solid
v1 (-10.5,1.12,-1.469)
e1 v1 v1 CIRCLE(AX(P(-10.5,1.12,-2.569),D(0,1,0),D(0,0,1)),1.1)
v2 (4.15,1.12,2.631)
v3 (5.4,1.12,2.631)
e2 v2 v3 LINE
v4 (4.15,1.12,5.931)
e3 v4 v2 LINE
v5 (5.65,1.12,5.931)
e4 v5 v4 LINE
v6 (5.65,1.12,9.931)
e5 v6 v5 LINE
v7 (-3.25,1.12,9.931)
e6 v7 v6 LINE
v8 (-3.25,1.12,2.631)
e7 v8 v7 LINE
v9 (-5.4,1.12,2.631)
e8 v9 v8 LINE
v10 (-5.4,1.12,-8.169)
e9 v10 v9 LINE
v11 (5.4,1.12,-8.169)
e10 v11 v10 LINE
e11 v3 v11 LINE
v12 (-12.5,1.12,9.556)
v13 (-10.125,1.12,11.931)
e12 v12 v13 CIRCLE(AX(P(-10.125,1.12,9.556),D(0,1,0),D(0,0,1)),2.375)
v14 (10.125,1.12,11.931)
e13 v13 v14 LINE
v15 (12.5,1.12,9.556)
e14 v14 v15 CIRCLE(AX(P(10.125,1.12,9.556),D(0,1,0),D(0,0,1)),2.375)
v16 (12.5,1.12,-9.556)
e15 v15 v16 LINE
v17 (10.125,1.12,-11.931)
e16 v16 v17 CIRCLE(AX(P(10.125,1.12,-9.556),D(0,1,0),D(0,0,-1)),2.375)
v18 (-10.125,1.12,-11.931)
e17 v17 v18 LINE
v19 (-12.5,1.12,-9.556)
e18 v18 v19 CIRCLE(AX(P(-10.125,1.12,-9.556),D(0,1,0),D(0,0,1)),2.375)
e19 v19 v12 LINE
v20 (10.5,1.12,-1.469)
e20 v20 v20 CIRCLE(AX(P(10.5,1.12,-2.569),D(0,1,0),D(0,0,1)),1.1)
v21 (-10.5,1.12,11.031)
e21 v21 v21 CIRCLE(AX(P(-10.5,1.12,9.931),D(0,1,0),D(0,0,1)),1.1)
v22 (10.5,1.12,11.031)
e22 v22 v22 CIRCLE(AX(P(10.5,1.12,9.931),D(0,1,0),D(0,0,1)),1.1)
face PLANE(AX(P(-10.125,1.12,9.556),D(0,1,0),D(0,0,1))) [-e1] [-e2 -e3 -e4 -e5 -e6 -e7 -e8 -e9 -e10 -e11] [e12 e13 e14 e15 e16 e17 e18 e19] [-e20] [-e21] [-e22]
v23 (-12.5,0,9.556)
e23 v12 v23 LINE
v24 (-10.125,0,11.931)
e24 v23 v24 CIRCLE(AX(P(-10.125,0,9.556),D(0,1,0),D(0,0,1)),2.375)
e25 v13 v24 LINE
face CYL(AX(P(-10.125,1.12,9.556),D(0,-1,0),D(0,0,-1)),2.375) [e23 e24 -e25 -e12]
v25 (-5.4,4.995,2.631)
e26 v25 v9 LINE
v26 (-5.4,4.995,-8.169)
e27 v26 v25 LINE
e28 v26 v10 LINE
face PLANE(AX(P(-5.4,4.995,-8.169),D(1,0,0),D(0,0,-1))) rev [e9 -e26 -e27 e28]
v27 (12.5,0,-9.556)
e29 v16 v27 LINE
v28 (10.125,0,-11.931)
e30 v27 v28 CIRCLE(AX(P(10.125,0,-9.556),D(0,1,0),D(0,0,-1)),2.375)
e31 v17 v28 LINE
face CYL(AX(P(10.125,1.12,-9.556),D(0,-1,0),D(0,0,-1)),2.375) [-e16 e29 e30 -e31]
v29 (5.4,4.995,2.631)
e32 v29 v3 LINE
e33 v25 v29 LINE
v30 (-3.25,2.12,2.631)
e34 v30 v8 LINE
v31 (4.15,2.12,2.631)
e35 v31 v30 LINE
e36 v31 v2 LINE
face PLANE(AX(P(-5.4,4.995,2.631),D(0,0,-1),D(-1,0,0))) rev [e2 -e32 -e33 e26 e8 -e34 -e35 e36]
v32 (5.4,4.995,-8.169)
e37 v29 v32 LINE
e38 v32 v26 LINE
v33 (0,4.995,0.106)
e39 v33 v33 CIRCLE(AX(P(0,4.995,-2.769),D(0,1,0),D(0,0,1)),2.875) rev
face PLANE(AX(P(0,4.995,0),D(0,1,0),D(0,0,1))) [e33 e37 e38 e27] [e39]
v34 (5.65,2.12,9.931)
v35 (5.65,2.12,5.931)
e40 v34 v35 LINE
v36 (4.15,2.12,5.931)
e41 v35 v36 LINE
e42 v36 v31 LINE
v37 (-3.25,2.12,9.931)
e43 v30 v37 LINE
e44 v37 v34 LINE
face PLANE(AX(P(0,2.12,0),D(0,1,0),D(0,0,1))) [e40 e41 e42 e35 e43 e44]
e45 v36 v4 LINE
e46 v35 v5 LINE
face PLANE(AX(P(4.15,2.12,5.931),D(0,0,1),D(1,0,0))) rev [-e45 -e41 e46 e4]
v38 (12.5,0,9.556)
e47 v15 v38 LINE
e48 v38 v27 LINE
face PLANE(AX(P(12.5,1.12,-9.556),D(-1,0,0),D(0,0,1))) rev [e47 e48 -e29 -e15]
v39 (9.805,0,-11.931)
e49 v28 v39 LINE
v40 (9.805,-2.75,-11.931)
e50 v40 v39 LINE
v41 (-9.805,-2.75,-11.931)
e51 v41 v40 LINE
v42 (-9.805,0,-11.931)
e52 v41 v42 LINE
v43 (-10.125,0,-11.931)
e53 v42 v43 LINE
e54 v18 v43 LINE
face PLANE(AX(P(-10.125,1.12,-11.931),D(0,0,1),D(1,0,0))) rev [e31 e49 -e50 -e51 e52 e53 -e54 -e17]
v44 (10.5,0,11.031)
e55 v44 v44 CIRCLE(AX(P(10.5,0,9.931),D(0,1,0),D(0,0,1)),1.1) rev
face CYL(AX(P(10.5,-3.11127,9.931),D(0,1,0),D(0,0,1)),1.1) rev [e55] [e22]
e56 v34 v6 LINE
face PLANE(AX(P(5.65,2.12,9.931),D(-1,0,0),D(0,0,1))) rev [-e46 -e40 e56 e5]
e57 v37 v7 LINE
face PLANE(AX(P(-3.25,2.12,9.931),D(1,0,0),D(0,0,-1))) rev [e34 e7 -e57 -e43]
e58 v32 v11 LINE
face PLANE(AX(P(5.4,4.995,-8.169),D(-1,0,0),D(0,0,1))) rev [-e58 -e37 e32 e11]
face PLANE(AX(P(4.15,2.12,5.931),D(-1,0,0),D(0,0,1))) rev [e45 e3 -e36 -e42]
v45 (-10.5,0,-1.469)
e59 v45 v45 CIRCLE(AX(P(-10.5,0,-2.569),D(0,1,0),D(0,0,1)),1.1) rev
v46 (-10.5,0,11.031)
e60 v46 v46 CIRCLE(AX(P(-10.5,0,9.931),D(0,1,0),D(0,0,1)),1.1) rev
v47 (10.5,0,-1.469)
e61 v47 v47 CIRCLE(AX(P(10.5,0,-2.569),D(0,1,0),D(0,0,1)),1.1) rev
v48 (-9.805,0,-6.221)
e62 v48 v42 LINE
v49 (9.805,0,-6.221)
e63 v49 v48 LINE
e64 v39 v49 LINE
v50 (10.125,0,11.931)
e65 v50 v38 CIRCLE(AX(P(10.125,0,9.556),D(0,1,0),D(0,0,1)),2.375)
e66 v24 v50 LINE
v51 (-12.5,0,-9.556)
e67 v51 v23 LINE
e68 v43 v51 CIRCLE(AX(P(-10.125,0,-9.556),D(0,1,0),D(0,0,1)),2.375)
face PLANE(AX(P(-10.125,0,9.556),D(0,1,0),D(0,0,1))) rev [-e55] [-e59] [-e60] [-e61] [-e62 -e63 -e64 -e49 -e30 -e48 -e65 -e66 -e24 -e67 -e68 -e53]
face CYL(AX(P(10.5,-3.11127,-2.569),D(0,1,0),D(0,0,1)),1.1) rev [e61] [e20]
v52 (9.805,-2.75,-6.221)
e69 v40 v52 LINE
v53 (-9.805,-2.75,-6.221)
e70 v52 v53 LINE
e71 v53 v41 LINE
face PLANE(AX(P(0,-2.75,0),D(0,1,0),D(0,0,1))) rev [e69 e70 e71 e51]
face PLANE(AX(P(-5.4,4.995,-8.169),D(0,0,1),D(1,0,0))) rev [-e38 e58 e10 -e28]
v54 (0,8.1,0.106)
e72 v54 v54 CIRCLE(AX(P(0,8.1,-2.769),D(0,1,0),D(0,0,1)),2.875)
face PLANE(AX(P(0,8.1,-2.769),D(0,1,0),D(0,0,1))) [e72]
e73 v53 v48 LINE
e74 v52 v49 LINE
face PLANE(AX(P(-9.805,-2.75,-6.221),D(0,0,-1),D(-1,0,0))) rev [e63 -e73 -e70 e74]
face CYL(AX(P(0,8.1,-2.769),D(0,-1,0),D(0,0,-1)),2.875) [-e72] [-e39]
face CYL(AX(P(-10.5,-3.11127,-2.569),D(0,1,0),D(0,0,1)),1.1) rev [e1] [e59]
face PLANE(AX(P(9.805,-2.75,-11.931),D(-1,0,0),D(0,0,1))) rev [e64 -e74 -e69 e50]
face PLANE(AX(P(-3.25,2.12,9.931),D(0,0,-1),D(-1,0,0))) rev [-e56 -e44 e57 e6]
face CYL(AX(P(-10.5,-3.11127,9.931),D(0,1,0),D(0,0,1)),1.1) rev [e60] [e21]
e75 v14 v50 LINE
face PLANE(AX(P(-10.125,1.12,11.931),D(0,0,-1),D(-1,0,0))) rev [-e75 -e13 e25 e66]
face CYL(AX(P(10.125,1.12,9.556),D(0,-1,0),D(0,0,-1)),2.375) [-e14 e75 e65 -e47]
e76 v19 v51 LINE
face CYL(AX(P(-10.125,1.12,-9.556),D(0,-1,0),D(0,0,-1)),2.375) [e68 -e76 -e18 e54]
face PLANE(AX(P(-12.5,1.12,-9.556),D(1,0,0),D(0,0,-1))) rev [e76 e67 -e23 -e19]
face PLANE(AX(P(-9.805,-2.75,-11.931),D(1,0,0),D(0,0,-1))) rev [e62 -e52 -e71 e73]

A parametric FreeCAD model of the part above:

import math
import FreeCAD as App
import Part
import Sketcher


def add_polygon(sketch, points):
    """Adds a closed chain of lines whose ends are joined by coincident constraints."""
    first, n = sketch.GeometryCount, len(points)
    for a, b in zip(points, points[1:] + points[:1]):
        sketch.addGeometry(Part.LineSegment(App.Vector(*a, 0), App.Vector(*b, 0)), False)
    for i in range(n):
        sketch.addConstraint(Sketcher.Constraint("Coincident", first + i, 2, first + (i + 1) % n, 1))

doc = App.newDocument("Part")
body = doc.addObject("PartDesign::Body", "Body")

# Sketch on XZ plane
sketch1 = doc.addObject("Sketcher::SketchObject", "Sketch")
body.addObject(sketch1)
sketch1.AttachmentSupport = (doc.XZ_Plane, [""])
sketch1.MapMode = "FlatFace"
sketch1.addGeometry(Part.LineSegment(App.Vector(10.125, -11.931, 0), App.Vector(-10.125, -11.931, 0)), False)
sketch1.addGeometry(Part.ArcOfCircle(Part.Circle(App.Vector(-10.125, -9.556, 0), App.Vector(0, 0, 1), 2.375), math.radians(-180), math.radians(-90)), False)
sketch1.addGeometry(Part.LineSegment(App.Vector(-12.5, -9.556, 0), App.Vector(-12.5, 9.556, 0)), False)
sketch1.addGeometry(Part.ArcOfCircle(Part.Circle(App.Vector(-10.125, 9.556, 0), App.Vector(0, 0, 1), 2.375), math.radians(90), math.radians(180)), False)
sketch1.addGeometry(Part.LineSegment(App.Vector(-10.125, 11.931, 0), App.Vector(10.125, 11.931, 0)), False)
sketch1.addGeometry(Part.ArcOfCircle(Part.Circle(App.Vector(10.125, 9.556, 0), App.Vector(0, 0, 1), 2.375), math.radians(0), math.radians(90)), False)
sketch1.addGeometry(Part.LineSegment(App.Vector(12.5, 9.556, 0), App.Vector(12.5, -9.556, 0)), False)
sketch1.addGeometry(Part.ArcOfCircle(Part.Circle(App.Vector(10.125, -9.556, 0), App.Vector(0, 0, 1), 2.375), math.radians(-90), math.radians(0)), False)
sketch1.addConstraint(Sketcher.Constraint("Tangent", 0, 2, 1, 2))
sketch1.addConstraint(Sketcher.Constraint("Tangent", 1, 1, 2, 1))
sketch1.addConstraint(Sketcher.Constraint("Tangent", 2, 2, 3, 2))
sketch1.addConstraint(Sketcher.Constraint("Tangent", 3, 1, 4, 1))
sketch1.addConstraint(Sketcher.Constraint("Tangent", 4, 2, 5, 2))
sketch1.addConstraint(Sketcher.Constraint("Tangent", 5, 1, 6, 1))
sketch1.addConstraint(Sketcher.Constraint("Tangent", 6, 2, 7, 2))
sketch1.addConstraint(Sketcher.Constraint("Tangent", 7, 1, 0, 1))
sketch1.addConstraint(Sketcher.Constraint("Horizontal", 0))
sketch1.addConstraint(Sketcher.Constraint("Vertical", 2))
sketch1.addConstraint(Sketcher.Constraint("Horizontal", 4))
sketch1.addConstraint(Sketcher.Constraint("Vertical", 6))
sketch1.addConstraint(Sketcher.Constraint("Equal", 1, 3))
sketch1.addConstraint(Sketcher.Constraint("Equal", 3, 5))
sketch1.addConstraint(Sketcher.Constraint("Equal", 5, 7))
sketch1.addConstraint(Sketcher.Constraint("Symmetric", 1, 3, 5, 3, -1, 1))
sketch1.addConstraint(Sketcher.Constraint("Radius", 1, 2.375))
sketch1.addConstraint(Sketcher.Constraint("DistanceX", 0, 2, 0, 1, 20.25))
sketch1.addConstraint(Sketcher.Constraint("DistanceY", 2, 1, 2, 2, 19.112))
pad1 = doc.addObject("PartDesign::Pad", "Pad")
body.addObject(pad1)
pad1.Profile = sketch1
pad1.Length = 1.12
pad1.Reversed = True

# Sketch on XZ plane
sketch2 = doc.addObject("Sketcher::SketchObject", "Sketch001")
body.addObject(sketch2)
sketch2.AttachmentSupport = (doc.XZ_Plane, [""])
sketch2.MapMode = "FlatFace"
sketch2.AttachmentOffset = App.Placement(App.Vector(0, 0, -1.12), App.Rotation())
sketch2.addGeometry(Part.Circle(App.Vector(-10.5, 9.931, 0), App.Vector(0, 0, 1), 1.1), False)
sketch2.addGeometry(Part.Circle(App.Vector(-10.5, -2.569, 0), App.Vector(0, 0, 1), 1.1), False)
sketch2.addGeometry(Part.Circle(App.Vector(10.5, 9.931, 0), App.Vector(0, 0, 1), 1.1), False)
sketch2.addGeometry(Part.Circle(App.Vector(10.5, -2.569, 0), App.Vector(0, 0, 1), 1.1), False)
sketch2.addConstraint(Sketcher.Constraint("Equal", 0, 1))
sketch2.addConstraint(Sketcher.Constraint("Equal", 1, 2))
sketch2.addConstraint(Sketcher.Constraint("Equal", 2, 3))
sketch2.addConstraint(Sketcher.Constraint("Symmetric", 0, 3, 2, 3, -2))
sketch2.addConstraint(Sketcher.Constraint("Symmetric", 1, 3, 3, 3, -2))
sketch2.addConstraint(Sketcher.Constraint("Vertical", 0, 3, 1, 3))
sketch2.addConstraint(Sketcher.Constraint("Diameter", 0, 2.2))
sketch2.addConstraint(Sketcher.Constraint("DistanceX", 0, 3, 2, 3, 21.0))
sketch2.addConstraint(Sketcher.Constraint("DistanceY", 1, 3, 0, 3, 12.5))
sketch2.addConstraint(Sketcher.Constraint("DistanceY", -1, 1, 0, 3, 9.931))
pocket1 = doc.addObject("PartDesign::Pocket", "Pocket")
body.addObject(pocket1)
pocket1.Profile = sketch2
pocket1.Length = 1.12
pocket1.Reversed = True

# Sketch on XZ plane
sketch3 = doc.addObject("Sketcher::SketchObject", "Sketch002")
body.addObject(sketch3)
sketch3.AttachmentSupport = (doc.XZ_Plane, [""])
sketch3.MapMode = "FlatFace"
sketch3.AttachmentOffset = App.Placement(App.Vector(0, 0, -1.12), App.Rotation())
add_polygon(sketch3, [(-5.4, -8.169), (-5.4, 2.631), (5.4, 2.631), (5.4, -8.169)])  # lines 0-3
sketch3.addConstraint(Sketcher.Constraint("Vertical", 0))
sketch3.addConstraint(Sketcher.Constraint("Horizontal", 1))
sketch3.addConstraint(Sketcher.Constraint("Vertical", 2))
sketch3.addConstraint(Sketcher.Constraint("Horizontal", 3))
sketch3.addConstraint(Sketcher.Constraint("Equal", 3, 0))
sketch3.addConstraint(Sketcher.Constraint("DistanceX", 1, 1, 1, 2, 10.8))
sketch3.addConstraint(Sketcher.Constraint("DistanceX", 0, 2, -1, 1, 5.4))
sketch3.addConstraint(Sketcher.Constraint("DistanceY", -1, 1, 0, 2, 2.631))
pad2 = doc.addObject("PartDesign::Pad", "Pad001")
body.addObject(pad2)
pad2.Profile = sketch3
pad2.Length = 3.875
pad2.Reversed = True

# Sketch on XZ plane
sketch4 = doc.addObject("Sketcher::SketchObject", "Sketch003")
body.addObject(sketch4)
sketch4.AttachmentSupport = (doc.XZ_Plane, [""])
sketch4.MapMode = "FlatFace"
sketch4.AttachmentOffset = App.Placement(App.Vector(0, 0, -1.12), App.Rotation())
sketch4.addGeometry(Part.Circle(App.Vector(0, -2.769, 0), App.Vector(0, 0, 1), 2.875), False)
sketch4.addConstraint(Sketcher.Constraint("PointOnObject", 0, 3, -2))
sketch4.addConstraint(Sketcher.Constraint("Diameter", 0, 5.75))
sketch4.addConstraint(Sketcher.Constraint("DistanceY", 0, 3, -1, 1, 2.769))
pad3 = doc.addObject("PartDesign::Pad", "Pad002")
body.addObject(pad3)
pad3.Profile = sketch4
pad3.Length = 6.98
pad3.Reversed = True

# Sketch on XZ plane
sketch5 = doc.addObject("Sketcher::SketchObject", "Sketch004")
body.addObject(sketch5)
sketch5.AttachmentSupport = (doc.XZ_Plane, [""])
sketch5.MapMode = "FlatFace"
add_polygon(sketch5, [(-9.805, -6.221), (-9.805, -11.931), (9.805, -11.931), (9.805, -6.221)])  # lines 0-3
sketch5.addConstraint(Sketcher.Constraint("Vertical", 0))
sketch5.addConstraint(Sketcher.Constraint("Horizontal", 1))
sketch5.addConstraint(Sketcher.Constraint("Vertical", 2))
sketch5.addConstraint(Sketcher.Constraint("Horizontal", 3))
sketch5.addConstraint(Sketcher.Constraint("DistanceX", 1, 1, 1, 2, 19.61))
sketch5.addConstraint(Sketcher.Constraint("DistanceY", 0, 2, 0, 1, 5.71))
sketch5.addConstraint(Sketcher.Constraint("DistanceX", 0, 2, -1, 1, 9.805))
sketch5.addConstraint(Sketcher.Constraint("DistanceY", 0, 2, -1, 1, 11.931))
pad4 = doc.addObject("PartDesign::Pad", "Pad003")
body.addObject(pad4)
pad4.Profile = sketch5
pad4.Length = 2.75

# Sketch on XZ plane
sketch6 = doc.addObject("Sketcher::SketchObject", "Sketch005")
body.addObject(sketch6)
sketch6.AttachmentSupport = (doc.XZ_Plane, [""])
sketch6.MapMode = "FlatFace"
sketch6.AttachmentOffset = App.Placement(App.Vector(0, 0, -1.12), App.Rotation())
add_polygon(sketch6, [(-3.25, 2.631), (-3.25, 9.931), (5.65, 9.931), (5.65, 5.931), (4.15, 5.931), (4.15, 2.631)])  # lines 0-5
sketch6.addConstraint(Sketcher.Constraint("Vertical", 0))
sketch6.addConstraint(Sketcher.Constraint("Horizontal", 1))
sketch6.addConstraint(Sketcher.Constraint("Vertical", 2))
sketch6.addConstraint(Sketcher.Constraint("Horizontal", 3))
sketch6.addConstraint(Sketcher.Constraint("Vertical", 4))
sketch6.addConstraint(Sketcher.Constraint("Horizontal", 5))
sketch6.addConstraint(Sketcher.Constraint("DistanceY", 2, 2, 2, 1, 4.0))
sketch6.addConstraint(Sketcher.Constraint("DistanceX", 1, 1, 1, 2, 8.9))
sketch6.addConstraint(Sketcher.Constraint("DistanceX", 3, 2, 3, 1, 1.5))
sketch6.addConstraint(Sketcher.Constraint("DistanceY", 0, 1, 0, 2, 7.3))
sketch6.addConstraint(Sketcher.Constraint("DistanceX", 0, 2, -1, 1, 3.25))
sketch6.addConstraint(Sketcher.Constraint("DistanceY", -1, 1, 0, 2, 9.931))
pad5 = doc.addObject("PartDesign::Pad", "Pad004")
body.addObject(pad5)
pad5.Profile = sketch6
pad5.Length = 1
pad5.Reversed = True

doc.recompute()
